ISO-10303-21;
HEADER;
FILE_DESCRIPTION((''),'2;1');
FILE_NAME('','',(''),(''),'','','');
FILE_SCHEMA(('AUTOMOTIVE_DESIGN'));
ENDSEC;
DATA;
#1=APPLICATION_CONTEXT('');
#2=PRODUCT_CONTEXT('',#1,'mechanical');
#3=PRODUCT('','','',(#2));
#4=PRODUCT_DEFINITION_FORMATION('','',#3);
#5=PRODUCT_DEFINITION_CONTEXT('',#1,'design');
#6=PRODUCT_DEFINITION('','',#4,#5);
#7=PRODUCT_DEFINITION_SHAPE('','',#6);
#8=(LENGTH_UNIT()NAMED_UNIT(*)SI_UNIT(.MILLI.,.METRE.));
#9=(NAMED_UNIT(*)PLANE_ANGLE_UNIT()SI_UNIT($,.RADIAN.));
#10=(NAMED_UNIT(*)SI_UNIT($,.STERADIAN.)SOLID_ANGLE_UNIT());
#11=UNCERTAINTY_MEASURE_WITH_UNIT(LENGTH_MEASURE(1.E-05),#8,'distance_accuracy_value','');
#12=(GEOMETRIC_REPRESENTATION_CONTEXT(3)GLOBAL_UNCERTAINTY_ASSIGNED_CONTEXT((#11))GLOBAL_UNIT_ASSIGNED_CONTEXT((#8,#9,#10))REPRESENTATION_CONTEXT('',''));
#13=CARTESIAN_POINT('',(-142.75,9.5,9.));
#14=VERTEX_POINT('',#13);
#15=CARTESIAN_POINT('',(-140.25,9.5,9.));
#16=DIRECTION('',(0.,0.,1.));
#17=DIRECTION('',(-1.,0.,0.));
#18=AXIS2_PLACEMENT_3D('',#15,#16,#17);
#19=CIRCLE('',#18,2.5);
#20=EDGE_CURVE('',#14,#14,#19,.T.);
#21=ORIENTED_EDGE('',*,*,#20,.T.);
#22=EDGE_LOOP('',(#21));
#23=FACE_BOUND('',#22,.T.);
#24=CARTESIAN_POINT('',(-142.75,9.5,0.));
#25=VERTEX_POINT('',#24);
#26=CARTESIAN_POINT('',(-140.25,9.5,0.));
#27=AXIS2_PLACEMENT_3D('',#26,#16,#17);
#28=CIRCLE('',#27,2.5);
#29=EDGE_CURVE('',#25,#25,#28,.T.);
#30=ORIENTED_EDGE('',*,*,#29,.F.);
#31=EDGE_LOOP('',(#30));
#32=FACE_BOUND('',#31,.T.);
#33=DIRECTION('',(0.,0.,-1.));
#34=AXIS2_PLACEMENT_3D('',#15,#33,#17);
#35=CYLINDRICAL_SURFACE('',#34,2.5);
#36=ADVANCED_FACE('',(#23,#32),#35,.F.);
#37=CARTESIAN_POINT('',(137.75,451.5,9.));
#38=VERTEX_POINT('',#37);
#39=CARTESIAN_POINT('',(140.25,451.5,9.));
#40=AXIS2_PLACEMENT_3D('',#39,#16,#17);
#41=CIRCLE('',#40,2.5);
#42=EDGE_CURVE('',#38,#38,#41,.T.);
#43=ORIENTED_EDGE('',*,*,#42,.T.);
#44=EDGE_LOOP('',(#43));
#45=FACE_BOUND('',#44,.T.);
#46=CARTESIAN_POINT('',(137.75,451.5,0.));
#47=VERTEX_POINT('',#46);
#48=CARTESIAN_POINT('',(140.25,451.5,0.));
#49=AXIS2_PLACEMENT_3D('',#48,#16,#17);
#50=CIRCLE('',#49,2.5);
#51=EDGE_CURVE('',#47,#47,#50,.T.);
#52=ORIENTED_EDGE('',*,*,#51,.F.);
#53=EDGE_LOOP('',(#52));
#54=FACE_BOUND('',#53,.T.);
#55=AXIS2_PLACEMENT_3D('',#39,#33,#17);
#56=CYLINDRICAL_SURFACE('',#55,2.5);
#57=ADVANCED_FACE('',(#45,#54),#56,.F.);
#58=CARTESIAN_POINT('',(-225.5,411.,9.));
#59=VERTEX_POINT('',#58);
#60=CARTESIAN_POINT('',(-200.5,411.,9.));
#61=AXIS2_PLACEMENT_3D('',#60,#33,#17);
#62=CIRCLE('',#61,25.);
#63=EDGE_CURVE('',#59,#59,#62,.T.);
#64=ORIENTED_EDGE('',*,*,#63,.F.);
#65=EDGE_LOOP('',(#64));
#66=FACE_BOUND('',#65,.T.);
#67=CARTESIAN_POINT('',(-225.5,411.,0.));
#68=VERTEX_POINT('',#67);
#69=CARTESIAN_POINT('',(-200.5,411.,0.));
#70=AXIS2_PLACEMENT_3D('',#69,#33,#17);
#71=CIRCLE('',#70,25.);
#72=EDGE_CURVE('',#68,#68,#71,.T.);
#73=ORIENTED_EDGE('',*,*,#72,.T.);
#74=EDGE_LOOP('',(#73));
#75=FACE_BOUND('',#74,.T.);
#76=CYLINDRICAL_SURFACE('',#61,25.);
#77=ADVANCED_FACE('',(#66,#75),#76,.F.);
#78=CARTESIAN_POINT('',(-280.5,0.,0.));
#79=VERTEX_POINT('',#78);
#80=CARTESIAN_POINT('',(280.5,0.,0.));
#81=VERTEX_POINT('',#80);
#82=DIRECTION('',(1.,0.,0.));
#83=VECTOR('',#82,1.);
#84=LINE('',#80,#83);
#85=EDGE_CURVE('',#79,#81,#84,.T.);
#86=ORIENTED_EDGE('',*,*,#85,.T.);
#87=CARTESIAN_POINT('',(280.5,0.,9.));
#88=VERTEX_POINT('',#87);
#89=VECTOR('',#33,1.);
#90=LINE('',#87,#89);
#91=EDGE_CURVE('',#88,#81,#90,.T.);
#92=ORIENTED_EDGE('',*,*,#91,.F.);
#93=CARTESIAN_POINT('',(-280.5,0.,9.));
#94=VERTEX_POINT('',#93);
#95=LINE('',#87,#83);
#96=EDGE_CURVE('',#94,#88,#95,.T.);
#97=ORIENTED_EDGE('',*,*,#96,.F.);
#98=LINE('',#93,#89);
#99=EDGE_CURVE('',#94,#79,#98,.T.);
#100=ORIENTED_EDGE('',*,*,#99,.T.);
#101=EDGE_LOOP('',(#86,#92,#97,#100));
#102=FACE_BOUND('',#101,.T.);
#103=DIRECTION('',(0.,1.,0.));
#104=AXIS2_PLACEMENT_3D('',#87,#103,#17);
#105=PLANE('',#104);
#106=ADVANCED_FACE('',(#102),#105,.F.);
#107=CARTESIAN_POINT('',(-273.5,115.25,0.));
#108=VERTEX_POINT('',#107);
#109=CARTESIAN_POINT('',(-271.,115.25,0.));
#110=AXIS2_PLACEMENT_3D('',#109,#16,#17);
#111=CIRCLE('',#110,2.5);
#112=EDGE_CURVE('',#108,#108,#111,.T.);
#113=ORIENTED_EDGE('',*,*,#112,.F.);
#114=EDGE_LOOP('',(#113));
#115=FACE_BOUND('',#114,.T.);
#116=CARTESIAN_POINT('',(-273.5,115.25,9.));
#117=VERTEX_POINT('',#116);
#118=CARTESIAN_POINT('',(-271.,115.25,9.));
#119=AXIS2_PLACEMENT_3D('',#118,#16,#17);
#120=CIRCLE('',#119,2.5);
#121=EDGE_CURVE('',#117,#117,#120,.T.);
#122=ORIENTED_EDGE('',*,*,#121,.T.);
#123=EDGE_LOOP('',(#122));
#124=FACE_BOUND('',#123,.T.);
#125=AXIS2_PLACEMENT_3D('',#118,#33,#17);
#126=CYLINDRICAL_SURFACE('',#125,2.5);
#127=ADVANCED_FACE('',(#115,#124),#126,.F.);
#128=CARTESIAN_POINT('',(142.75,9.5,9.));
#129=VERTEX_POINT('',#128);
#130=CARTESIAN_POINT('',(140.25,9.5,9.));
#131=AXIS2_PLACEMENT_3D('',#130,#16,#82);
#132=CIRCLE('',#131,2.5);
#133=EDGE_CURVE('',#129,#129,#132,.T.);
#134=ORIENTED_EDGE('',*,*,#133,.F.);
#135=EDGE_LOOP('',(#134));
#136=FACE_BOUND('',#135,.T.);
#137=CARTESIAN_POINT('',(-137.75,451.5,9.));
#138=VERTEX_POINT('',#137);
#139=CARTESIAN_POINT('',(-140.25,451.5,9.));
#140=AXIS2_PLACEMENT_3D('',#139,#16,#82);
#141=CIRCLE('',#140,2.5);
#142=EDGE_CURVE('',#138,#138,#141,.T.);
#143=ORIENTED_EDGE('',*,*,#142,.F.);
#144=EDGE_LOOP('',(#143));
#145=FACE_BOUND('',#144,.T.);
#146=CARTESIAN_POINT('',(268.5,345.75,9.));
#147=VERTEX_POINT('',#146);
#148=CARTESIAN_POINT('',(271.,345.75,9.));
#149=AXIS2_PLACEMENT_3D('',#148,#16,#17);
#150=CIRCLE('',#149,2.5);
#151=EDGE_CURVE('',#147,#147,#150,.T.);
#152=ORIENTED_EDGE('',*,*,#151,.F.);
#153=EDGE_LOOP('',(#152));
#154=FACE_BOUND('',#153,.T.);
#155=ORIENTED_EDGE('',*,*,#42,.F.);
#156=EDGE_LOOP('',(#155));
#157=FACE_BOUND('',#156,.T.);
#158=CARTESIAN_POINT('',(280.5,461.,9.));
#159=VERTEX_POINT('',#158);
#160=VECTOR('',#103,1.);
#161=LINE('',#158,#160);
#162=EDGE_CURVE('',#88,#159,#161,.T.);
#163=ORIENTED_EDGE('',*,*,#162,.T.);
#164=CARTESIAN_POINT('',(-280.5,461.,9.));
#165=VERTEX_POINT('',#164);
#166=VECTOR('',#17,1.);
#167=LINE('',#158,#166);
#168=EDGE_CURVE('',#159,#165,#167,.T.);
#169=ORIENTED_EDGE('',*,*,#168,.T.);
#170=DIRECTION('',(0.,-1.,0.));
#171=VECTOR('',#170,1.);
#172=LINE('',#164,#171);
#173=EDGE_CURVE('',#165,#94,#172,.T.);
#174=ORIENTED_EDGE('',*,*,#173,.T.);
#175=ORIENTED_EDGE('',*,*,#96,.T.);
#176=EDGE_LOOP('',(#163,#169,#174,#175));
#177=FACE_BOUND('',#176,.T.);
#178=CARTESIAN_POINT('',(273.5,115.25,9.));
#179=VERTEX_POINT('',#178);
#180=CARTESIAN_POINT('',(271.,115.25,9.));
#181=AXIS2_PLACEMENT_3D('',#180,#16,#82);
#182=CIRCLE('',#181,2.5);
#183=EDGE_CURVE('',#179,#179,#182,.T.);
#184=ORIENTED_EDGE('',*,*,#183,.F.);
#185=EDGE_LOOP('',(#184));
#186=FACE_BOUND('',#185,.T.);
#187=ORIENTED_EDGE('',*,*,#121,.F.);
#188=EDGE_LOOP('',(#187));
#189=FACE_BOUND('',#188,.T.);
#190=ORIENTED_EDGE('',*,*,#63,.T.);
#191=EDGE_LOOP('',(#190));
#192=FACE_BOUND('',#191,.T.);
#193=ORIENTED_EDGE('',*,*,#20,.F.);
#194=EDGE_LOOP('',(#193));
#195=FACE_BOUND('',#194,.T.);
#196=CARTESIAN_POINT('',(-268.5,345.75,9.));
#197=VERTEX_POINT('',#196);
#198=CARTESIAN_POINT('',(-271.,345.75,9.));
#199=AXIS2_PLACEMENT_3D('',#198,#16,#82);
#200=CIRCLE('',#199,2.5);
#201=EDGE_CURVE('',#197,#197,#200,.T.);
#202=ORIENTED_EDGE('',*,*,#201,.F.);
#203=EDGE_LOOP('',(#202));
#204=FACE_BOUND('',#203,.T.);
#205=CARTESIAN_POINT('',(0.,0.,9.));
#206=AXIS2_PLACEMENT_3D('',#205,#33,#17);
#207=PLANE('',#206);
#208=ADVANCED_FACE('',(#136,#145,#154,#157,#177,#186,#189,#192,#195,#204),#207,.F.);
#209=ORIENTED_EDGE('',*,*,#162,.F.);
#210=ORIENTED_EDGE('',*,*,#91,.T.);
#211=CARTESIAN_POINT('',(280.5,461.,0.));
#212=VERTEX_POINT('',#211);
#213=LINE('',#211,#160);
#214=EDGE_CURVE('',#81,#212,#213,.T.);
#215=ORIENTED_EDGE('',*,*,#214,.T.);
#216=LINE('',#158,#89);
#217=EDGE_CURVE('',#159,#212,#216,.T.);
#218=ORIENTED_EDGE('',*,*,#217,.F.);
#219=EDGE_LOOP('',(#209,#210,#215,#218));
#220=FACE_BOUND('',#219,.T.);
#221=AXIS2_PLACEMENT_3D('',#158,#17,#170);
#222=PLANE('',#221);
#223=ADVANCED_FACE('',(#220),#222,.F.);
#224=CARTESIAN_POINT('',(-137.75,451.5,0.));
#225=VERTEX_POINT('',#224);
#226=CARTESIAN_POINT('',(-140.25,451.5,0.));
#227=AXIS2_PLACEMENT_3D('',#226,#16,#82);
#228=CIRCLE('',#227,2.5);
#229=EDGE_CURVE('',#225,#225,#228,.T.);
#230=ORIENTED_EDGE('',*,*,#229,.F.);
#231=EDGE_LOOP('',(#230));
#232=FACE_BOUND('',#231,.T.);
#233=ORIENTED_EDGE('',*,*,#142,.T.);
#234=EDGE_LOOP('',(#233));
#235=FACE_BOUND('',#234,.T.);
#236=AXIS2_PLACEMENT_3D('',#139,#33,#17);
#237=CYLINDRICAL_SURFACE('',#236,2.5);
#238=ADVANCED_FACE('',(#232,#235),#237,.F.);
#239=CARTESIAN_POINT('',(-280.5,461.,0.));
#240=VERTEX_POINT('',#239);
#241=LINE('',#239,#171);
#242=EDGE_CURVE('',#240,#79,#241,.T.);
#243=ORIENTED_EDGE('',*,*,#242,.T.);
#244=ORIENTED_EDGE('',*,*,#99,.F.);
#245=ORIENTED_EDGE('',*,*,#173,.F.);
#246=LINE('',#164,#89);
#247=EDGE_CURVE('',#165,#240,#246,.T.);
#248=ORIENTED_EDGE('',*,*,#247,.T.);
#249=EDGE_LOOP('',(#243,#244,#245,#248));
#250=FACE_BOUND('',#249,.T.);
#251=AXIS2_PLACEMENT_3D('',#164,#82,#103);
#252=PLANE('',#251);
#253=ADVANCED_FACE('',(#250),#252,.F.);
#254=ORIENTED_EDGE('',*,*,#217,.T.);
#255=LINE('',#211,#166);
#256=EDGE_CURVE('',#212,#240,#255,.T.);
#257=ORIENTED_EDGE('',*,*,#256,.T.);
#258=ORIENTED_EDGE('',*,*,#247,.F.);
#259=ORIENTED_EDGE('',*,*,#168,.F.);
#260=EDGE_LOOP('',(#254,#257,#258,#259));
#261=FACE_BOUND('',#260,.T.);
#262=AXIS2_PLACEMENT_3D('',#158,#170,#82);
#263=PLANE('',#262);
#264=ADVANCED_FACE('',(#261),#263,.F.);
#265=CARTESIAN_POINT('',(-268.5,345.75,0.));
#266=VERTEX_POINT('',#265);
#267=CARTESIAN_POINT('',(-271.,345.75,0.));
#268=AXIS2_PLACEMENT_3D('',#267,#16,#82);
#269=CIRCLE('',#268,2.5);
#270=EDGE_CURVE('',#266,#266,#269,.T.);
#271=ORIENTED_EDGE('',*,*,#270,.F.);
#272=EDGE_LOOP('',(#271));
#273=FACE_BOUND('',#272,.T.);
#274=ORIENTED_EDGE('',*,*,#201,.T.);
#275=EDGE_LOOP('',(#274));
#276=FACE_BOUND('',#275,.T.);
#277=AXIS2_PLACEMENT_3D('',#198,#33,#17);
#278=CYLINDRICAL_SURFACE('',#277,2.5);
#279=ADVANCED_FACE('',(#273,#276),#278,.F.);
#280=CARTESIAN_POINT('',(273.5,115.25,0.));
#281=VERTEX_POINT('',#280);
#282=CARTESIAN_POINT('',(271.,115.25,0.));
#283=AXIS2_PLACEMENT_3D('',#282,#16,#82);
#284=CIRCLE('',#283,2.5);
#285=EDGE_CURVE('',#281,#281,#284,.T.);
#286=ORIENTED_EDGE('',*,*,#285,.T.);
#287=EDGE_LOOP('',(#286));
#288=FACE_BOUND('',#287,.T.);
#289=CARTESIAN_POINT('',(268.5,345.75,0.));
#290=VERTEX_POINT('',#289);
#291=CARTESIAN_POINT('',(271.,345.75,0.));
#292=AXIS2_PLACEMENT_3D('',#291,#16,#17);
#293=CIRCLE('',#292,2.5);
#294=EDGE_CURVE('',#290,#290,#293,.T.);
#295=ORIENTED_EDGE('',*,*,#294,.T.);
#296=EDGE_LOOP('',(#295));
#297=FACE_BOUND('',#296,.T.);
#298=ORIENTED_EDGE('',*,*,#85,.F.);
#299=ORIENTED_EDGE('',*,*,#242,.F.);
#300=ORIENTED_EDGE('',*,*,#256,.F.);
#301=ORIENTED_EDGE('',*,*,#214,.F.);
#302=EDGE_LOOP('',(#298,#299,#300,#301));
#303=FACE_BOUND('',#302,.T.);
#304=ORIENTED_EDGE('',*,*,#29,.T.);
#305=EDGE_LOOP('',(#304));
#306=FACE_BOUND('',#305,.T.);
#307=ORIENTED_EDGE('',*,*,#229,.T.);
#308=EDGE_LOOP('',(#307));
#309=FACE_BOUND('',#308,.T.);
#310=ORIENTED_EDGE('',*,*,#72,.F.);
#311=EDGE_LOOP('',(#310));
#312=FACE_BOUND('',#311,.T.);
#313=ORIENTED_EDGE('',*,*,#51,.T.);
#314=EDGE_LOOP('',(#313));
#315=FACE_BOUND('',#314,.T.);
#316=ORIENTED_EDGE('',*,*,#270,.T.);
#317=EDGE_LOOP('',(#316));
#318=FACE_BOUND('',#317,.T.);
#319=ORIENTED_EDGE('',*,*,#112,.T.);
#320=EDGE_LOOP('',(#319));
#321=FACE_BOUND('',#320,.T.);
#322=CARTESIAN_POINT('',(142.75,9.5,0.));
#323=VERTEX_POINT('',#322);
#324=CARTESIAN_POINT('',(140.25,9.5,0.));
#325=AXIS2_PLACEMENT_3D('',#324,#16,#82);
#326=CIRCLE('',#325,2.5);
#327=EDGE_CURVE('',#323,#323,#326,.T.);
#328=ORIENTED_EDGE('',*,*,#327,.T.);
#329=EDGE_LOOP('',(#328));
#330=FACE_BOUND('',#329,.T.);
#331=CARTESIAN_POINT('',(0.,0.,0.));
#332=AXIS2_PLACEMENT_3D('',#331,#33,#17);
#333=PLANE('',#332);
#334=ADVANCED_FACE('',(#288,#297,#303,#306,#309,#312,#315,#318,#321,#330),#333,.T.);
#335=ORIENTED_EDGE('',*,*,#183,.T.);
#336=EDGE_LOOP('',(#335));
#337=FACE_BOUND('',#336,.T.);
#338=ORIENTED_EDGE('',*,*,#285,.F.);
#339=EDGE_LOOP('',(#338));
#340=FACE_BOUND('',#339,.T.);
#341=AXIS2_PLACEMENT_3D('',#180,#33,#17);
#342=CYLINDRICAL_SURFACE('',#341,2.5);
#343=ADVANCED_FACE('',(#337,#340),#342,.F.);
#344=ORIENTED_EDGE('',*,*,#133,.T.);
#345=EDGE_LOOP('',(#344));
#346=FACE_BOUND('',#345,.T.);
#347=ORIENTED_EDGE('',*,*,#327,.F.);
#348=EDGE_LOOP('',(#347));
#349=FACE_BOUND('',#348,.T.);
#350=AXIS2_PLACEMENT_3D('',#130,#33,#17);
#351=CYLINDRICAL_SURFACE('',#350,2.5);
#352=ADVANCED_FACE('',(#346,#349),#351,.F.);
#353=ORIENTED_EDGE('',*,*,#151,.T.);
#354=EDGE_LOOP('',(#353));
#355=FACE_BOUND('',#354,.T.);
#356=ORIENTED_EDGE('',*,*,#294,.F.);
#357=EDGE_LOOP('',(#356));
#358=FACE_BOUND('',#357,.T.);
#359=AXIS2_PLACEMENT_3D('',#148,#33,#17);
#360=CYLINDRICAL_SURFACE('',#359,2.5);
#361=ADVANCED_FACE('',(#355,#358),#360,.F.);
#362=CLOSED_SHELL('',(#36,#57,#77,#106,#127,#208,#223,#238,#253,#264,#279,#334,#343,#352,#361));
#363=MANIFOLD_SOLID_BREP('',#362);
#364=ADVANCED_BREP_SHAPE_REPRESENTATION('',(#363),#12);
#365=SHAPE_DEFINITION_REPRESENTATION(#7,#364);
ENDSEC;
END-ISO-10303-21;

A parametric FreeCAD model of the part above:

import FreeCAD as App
import Part
import Sketcher
Q = App.Units.Quantity


def add_polygon(sketch, points):
    """Adds a closed chain of lines whose ends are joined by coincident constraints."""
    first, n = sketch.GeometryCount, len(points)
    for a, b in zip(points, points[1:] + points[:1]):
        sketch.addGeometry(Part.LineSegment(App.Vector(*a, 0), App.Vector(*b, 0)), False)
    for i in range(n):
        sketch.addConstraint(Sketcher.Constraint("Coincident", first + i, 2, first + (i + 1) % n, 1))

doc = App.newDocument("Part")
params = doc.addObject("Spreadsheet::Sheet", "Params")
for row, (alias, value) in enumerate([
    ("sketch1_diameter", "5 mm"),
    ("sketch1_width", "561 mm"),
    ("sketch1_height", "461 mm"),
    ("pad1_length", "9 mm"),
    ("sketch2_diameter", "50 mm"),
], start=1):
    params.set(f"A{row}", alias)
    params.set(f"B{row}", "=" + value)
    params.setAlias(f"B{row}", alias)

body = doc.addObject("PartDesign::Body", "Body")

sketch1 = body.newObject("Sketcher::SketchObject", "Sketch")
sketch1.AttachmentSupport = (doc.getObject("XY_Plane"), [""])
sketch1.MapMode = "FlatFace"
add_polygon(sketch1, [(-280.5, 461), (-280.5, 0), (280.5, 0), (280.5, 461)])
sketch1.addGeometry(Part.Circle(App.Vector(-140.25, 9.5, 0), App.Vector(0, 0, 1), 2.5), False)
sketch1.addGeometry(Part.Circle(App.Vector(-271, 115.25, 0), App.Vector(0, 0, 1), 2.5), False)
sketch1.addGeometry(Part.Circle(App.Vector(140.25, 9.5, 0), App.Vector(0, 0, 1), 2.5), False)
sketch1.addGeometry(Part.Circle(App.Vector(271, 115.25, 0), App.Vector(0, 0, 1), 2.5), False)
sketch1.addGeometry(Part.Circle(App.Vector(-271, 345.75, 0), App.Vector(0, 0, 1), 2.5), False)
sketch1.addGeometry(Part.Circle(App.Vector(-140.25, 451.5, 0), App.Vector(0, 0, 1), 2.5), False)
sketch1.addGeometry(Part.Circle(App.Vector(271, 345.75, 0), App.Vector(0, 0, 1), 2.5), False)
sketch1.addGeometry(Part.Circle(App.Vector(140.25, 451.5, 0), App.Vector(0, 0, 1), 2.5), False)
sketch1.addConstraint([
    Sketcher.Constraint("Vertical", 0),
    Sketcher.Constraint("Horizontal", 1),
    Sketcher.Constraint("Vertical", 2),
    Sketcher.Constraint("Horizontal", 3),
    Sketcher.Constraint("Equal", 4, 5),
    Sketcher.Constraint("Equal", 5, 6),
    Sketcher.Constraint("Equal", 6, 7),
    Sketcher.Constraint("Equal", 7, 8),
    Sketcher.Constraint("Equal", 8, 9),
    Sketcher.Constraint("Equal", 9, 10),
    Sketcher.Constraint("Equal", 10, 11),
    Sketcher.Constraint("Symmetric", 0, 2, 1, 2, -1, 1),
    Sketcher.Constraint("Symmetric", 4, 3, 6, 3, -2),
    Sketcher.Constraint("Symmetric", 5, 3, 7, 3, -2),
    Sketcher.Constraint("Symmetric", 8, 3, 10, 3, -2),
    Sketcher.Constraint("Symmetric", 9, 3, 11, 3, -2),
    Sketcher.Constraint("Vertical", 5, 3, 8, 3),
    Sketcher.Constraint("Vertical", 4, 3, 9, 3),
    Sketcher.Constraint("Diameter", 4, Q("5 mm")),
    Sketcher.Constraint("DistanceX", 1, 1, 1, 2, Q("561 mm")),
    Sketcher.Constraint("DistanceY", 0, 2, 0, 1, Q("461 mm")),
    Sketcher.Constraint("DistanceX", 5, 3, -1, 1, Q("271 mm")),
    Sketcher.Constraint("DistanceY", 4, 3, 9, 3, Q("442 mm")),
    Sketcher.Constraint("DistanceY", -1, 1, 4, 3, Q("9.5 mm")),
    Sketcher.Constraint("DistanceX", 4, 3, 6, 3, Q("280.5 mm")),
    Sketcher.Constraint("DistanceY", 5, 3, 8, 3, Q("230.5 mm")),
    Sketcher.Constraint("DistanceY", -1, 1, 5, 3, Q("115.25 mm")),
])
sketch1.setExpression("Constraints[22]", "Params.sketch1_diameter")
sketch1.setExpression("Constraints[23]", "Params.sketch1_width")
sketch1.setExpression("Constraints[24]", "Params.sketch1_height")
pad1 = body.newObject("PartDesign::Pad", "Pad")
pad1.Profile = sketch1
pad1.setExpression("Length", "Params.pad1_length")

sketch2 = body.newObject("Sketcher::SketchObject", "Sketch001")
sketch2.AttachmentSupport = (doc.getObject("XY_Plane"), [""])
sketch2.MapMode = "FlatFace"
sketch2.addGeometry(Part.Circle(App.Vector(-200.5, 411, 0), App.Vector(0, 0, 1), 25), False)
sketch2.addConstraint([
    Sketcher.Constraint("Diameter", 0, Q("50 mm")),
    Sketcher.Constraint("DistanceY", -1, 1, 0, 3, Q("411 mm")),
    Sketcher.Constraint("DistanceX", 0, 3, -1, 1, Q("200.5 mm")),
])
sketch2.setExpression("Constraints[0]", "Params.sketch2_diameter")
pocket1 = body.newObject("PartDesign::Pocket", "Pocket")
pocket1.Profile = sketch2
pocket1.Type = "ThroughAll"
pocket1.Midplane = True

doc.recompute()
